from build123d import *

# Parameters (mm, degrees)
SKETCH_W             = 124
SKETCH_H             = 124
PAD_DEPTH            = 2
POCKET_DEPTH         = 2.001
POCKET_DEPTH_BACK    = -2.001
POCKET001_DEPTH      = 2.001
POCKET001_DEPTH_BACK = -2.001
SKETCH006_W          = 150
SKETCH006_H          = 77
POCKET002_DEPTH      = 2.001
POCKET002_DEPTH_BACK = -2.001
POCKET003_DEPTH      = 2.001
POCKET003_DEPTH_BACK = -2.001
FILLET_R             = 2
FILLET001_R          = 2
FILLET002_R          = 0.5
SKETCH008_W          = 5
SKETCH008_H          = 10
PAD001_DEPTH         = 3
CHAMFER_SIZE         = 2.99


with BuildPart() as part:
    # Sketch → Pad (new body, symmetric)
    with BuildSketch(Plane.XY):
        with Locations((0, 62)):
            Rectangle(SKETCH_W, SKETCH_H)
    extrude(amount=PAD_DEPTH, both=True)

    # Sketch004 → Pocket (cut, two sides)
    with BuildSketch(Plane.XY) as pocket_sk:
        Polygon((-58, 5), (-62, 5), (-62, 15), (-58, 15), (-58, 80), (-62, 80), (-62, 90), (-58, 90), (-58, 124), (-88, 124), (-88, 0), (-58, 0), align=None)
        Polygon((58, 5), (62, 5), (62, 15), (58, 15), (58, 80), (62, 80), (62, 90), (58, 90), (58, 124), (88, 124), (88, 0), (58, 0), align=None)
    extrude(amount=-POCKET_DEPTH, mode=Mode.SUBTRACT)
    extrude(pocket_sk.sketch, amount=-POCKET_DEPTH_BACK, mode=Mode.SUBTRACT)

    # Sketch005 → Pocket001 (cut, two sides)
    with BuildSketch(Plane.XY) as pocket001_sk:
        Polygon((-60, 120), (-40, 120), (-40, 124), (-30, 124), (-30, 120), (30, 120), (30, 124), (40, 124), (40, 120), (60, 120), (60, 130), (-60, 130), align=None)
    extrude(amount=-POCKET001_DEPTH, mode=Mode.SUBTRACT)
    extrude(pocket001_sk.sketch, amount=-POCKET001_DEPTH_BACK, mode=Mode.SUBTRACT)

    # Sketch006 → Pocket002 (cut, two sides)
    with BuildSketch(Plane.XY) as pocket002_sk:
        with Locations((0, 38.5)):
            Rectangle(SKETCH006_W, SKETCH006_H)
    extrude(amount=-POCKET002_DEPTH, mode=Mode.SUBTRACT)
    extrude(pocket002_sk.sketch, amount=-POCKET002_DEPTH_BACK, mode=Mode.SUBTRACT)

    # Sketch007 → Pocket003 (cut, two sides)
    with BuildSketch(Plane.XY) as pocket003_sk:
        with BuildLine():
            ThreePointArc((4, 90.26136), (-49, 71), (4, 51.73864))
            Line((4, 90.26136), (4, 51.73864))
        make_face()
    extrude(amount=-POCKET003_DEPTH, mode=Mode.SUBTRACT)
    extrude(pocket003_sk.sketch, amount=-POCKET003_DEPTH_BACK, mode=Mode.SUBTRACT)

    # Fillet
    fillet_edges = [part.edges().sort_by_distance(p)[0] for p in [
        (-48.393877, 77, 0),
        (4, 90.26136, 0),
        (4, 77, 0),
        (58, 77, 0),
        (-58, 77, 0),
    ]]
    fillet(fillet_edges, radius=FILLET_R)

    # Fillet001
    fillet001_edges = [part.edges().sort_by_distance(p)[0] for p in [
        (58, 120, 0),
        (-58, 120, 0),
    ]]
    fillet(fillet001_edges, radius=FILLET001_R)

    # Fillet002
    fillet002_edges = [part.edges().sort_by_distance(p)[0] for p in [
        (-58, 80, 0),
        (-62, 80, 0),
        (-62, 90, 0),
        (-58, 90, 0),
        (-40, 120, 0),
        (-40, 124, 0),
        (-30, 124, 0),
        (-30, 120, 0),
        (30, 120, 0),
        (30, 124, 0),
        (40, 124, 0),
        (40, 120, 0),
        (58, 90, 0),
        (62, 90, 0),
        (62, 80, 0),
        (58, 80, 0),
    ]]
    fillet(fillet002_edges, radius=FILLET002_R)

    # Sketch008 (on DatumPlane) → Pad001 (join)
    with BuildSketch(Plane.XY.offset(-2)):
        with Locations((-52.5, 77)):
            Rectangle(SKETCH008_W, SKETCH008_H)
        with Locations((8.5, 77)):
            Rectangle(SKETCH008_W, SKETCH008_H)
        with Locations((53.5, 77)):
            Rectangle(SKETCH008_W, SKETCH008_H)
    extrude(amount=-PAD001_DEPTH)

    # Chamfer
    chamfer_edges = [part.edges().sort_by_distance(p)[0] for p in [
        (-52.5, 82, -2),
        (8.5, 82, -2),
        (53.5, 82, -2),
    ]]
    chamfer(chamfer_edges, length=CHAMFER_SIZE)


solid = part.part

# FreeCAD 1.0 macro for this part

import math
import FreeCAD as App
import Part
import Sketcher

V = App.Vector


def edges_at(feature, points):
    """Names of the edges that pass closest to the given points."""
    edges = feature.Shape.Edges
    near = lambda p: min(range(len(edges)), key=lambda i: edges[i].distToShape(Part.Vertex(*p))[0])
    return sorted({f"Edge{near(p) + 1}" for p in points})

doc = App.newDocument("Part")
body = doc.addObject("PartDesign::Body", "Body")

sketch1 = doc.addObject("Sketcher::SketchObject", "Sketch")
body.addObject(sketch1)
sketch1.AttachmentSupport = (doc.XY_Plane, [""])
sketch1.MapMode = "FlatFace"
sketch1.addGeometry(Part.LineSegment(V(-62, 124, 0), V(-62, 0, 0)), False)
sketch1.addGeometry(Part.LineSegment(V(-62, 0, 0), V(62, 0, 0)), False)
sketch1.addGeometry(Part.LineSegment(V(62, 0, 0), V(62, 124, 0)), False)
sketch1.addGeometry(Part.LineSegment(V(62, 124, 0), V(-62, 124, 0)), False)
sketch1.addConstraint(Sketcher.Constraint("Coincident", 0, 2, 1, 1))
sketch1.addConstraint(Sketcher.Constraint("Coincident", 1, 2, 2, 1))
sketch1.addConstraint(Sketcher.Constraint("Coincident", 2, 2, 3, 1))
sketch1.addConstraint(Sketcher.Constraint("Coincident", 3, 2, 0, 1))
sketch1.addConstraint(Sketcher.Constraint("Vertical", 0))
sketch1.addConstraint(Sketcher.Constraint("Horizontal", 1))
sketch1.addConstraint(Sketcher.Constraint("Vertical", 2))
sketch1.addConstraint(Sketcher.Constraint("Horizontal", 3))
sketch1.addConstraint(Sketcher.Constraint("Symmetric", 0, 2, 1, 2, -1, 1))
sketch1.addConstraint(Sketcher.Constraint("Equal", 3, 0))
sketch1.addConstraint(Sketcher.Constraint("DistanceX", 1, 1, 1, 2, 124.0))
pad1 = doc.addObject("PartDesign::Pad", "Pad")
body.addObject(pad1)
pad1.Profile = sketch1
pad1.Length = 4
pad1.Midplane = True

sketch2 = doc.addObject("Sketcher::SketchObject", "Sketch001")
body.addObject(sketch2)
sketch2.AttachmentSupport = (doc.XY_Plane, [""])
sketch2.MapMode = "FlatFace"
sketch2.addGeometry(Part.LineSegment(V(-58, 5, 0), V(-62, 5, 0)), False)
sketch2.addGeometry(Part.LineSegment(V(-62, 5, 0), V(-62, 15, 0)), False)
sketch2.addGeometry(Part.LineSegment(V(-62, 15, 0), V(-58, 15, 0)), False)
sketch2.addGeometry(Part.LineSegment(V(-58, 15, 0), V(-58, 80, 0)), False)
sketch2.addGeometry(Part.LineSegment(V(-58, 80, 0), V(-62, 80, 0)), False)
sketch2.addGeometry(Part.LineSegment(V(-62, 80, 0), V(-62, 90, 0)), False)
sketch2.addGeometry(Part.LineSegment(V(-62, 90, 0), V(-58, 90, 0)), False)
sketch2.addGeometry(Part.LineSegment(V(-58, 90, 0), V(-58, 124, 0)), False)
sketch2.addGeometry(Part.LineSegment(V(-58, 124, 0), V(-88, 124, 0)), False)
sketch2.addGeometry(Part.LineSegment(V(-88, 124, 0), V(-88, 0, 0)), False)
sketch2.addGeometry(Part.LineSegment(V(-88, 0, 0), V(-58, 0, 0)), False)
sketch2.addGeometry(Part.LineSegment(V(-58, 0, 0), V(-58, 5, 0)), False)
sketch2.addGeometry(Part.LineSegment(V(62, 5, 0), V(58, 5, 0)), False)
sketch2.addGeometry(Part.LineSegment(V(58, 5, 0), V(58, 0, 0)), False)
sketch2.addGeometry(Part.LineSegment(V(58, 0, 0), V(88, 0, 0)), False)
sketch2.addGeometry(Part.LineSegment(V(88, 0, 0), V(88, 124, 0)), False)
sketch2.addGeometry(Part.LineSegment(V(88, 124, 0), V(58, 124, 0)), False)
sketch2.addGeometry(Part.LineSegment(V(58, 124, 0), V(58, 90, 0)), False)
sketch2.addGeometry(Part.LineSegment(V(58, 90, 0), V(62, 90, 0)), False)
sketch2.addGeometry(Part.LineSegment(V(62, 90, 0), V(62, 80, 0)), False)
sketch2.addGeometry(Part.LineSegment(V(62, 80, 0), V(58, 80, 0)), False)
sketch2.addGeometry(Part.LineSegment(V(58, 80, 0), V(58, 15, 0)), False)
sketch2.addGeometry(Part.LineSegment(V(58, 15, 0), V(62, 15, 0)), False)
sketch2.addGeometry(Part.LineSegment(V(62, 15, 0), V(62, 5, 0)), False)
sketch2.addConstraint(Sketcher.Constraint("Coincident", 0, 2, 1, 1))
sketch2.addConstraint(Sketcher.Constraint("Coincident", 1, 2, 2, 1))
sketch2.addConstraint(Sketcher.Constraint("Coincident", 2, 2, 3, 1))
sketch2.addConstraint(Sketcher.Constraint("Coincident", 3, 2, 4, 1))
sketch2.addConstraint(Sketcher.Constraint("Coincident", 4, 2, 5, 1))
sketch2.addConstraint(Sketcher.Constraint("Coincident", 5, 2, 6, 1))
sketch2.addConstraint(Sketcher.Constraint("Coincident", 6, 2, 7, 1))
sketch2.addConstraint(Sketcher.Constraint("Coincident", 7, 2, 8, 1))
sketch2.addConstraint(Sketcher.Constraint("Coincident", 8, 2, 9, 1))
sketch2.addConstraint(Sketcher.Constraint("Coincident", 9, 2, 10, 1))
sketch2.addConstraint(Sketcher.Constraint("Coincident", 10, 2, 11, 1))
sketch2.addConstraint(Sketcher.Constraint("Coincident", 11, 2, 0, 1))
sketch2.addConstraint(Sketcher.Constraint("Coincident", 12, 2, 13, 1))
sketch2.addConstraint(Sketcher.Constraint("Coincident", 13, 2, 14, 1))
sketch2.addConstraint(Sketcher.Constraint("Coincident", 14, 2, 15, 1))
sketch2.addConstraint(Sketcher.Constraint("Coincident", 15, 2, 16, 1))
sketch2.addConstraint(Sketcher.Constraint("Coincident", 16, 2, 17, 1))
sketch2.addConstraint(Sketcher.Constraint("Coincident", 17, 2, 18, 1))
sketch2.addConstraint(Sketcher.Constraint("Coincident", 18, 2, 19, 1))
sketch2.addConstraint(Sketcher.Constraint("Coincident", 19, 2, 20, 1))
sketch2.addConstraint(Sketcher.Constraint("Coincident", 20, 2, 21, 1))
sketch2.addConstraint(Sketcher.Constraint("Coincident", 21, 2, 22, 1))
sketch2.addConstraint(Sketcher.Constraint("Coincident", 22, 2, 23, 1))
sketch2.addConstraint(Sketcher.Constraint("Coincident", 23, 2, 12, 1))
sketch2.addConstraint(Sketcher.Constraint("Horizontal", 0))
sketch2.addConstraint(Sketcher.Constraint("Vertical", 1))
sketch2.addConstraint(Sketcher.Constraint("Horizontal", 2))
sketch2.addConstraint(Sketcher.Constraint("Vertical", 3))
sketch2.addConstraint(Sketcher.Constraint("Horizontal", 4))
sketch2.addConstraint(Sketcher.Constraint("Vertical", 5))
sketch2.addConstraint(Sketcher.Constraint("Horizontal", 6))
sketch2.addConstraint(Sketcher.Constraint("Vertical", 7))
sketch2.addConstraint(Sketcher.Constraint("Horizontal", 8))
sketch2.addConstraint(Sketcher.Constraint("Vertical", 9))
sketch2.addConstraint(Sketcher.Constraint("Horizontal", 10))
sketch2.addConstraint(Sketcher.Constraint("Vertical", 11))
sketch2.addConstraint(Sketcher.Constraint("Horizontal", 12))
sketch2.addConstraint(Sketcher.Constraint("Vertical", 13))
sketch2.addConstraint(Sketcher.Constraint("Horizontal", 14))
sketch2.addConstraint(Sketcher.Constraint("Vertical", 15))
sketch2.addConstraint(Sketcher.Constraint("Horizontal", 16))
sketch2.addConstraint(Sketcher.Constraint("Vertical", 17))
sketch2.addConstraint(Sketcher.Constraint("Horizontal", 18))
sketch2.addConstraint(Sketcher.Constraint("Vertical", 19))
sketch2.addConstraint(Sketcher.Constraint("Horizontal", 20))
sketch2.addConstraint(Sketcher.Constraint("Vertical", 21))
sketch2.addConstraint(Sketcher.Constraint("Horizontal", 22))
sketch2.addConstraint(Sketcher.Constraint("Vertical", 23))
sketch2.addConstraint(Sketcher.Constraint("Symmetric", 10, 2, 13, 2, -1, 1))
sketch2.addConstraint(Sketcher.Constraint("Symmetric", 9, 2, 14, 2, -2))
sketch2.addConstraint(Sketcher.Constraint("Symmetric", 7, 2, 16, 2, -2))
sketch2.addConstraint(Sketcher.Constraint("Symmetric", 5, 2, 18, 2, -2))
sketch2.addConstraint(Sketcher.Constraint("Symmetric", 3, 2, 20, 2, -2))
sketch2.addConstraint(Sketcher.Constraint("Symmetric", 1, 2, 22, 2, -2))
sketch2.addConstraint(Sketcher.Constraint("Horizontal", 11, 2, 12, 2))
sketch2.addConstraint(Sketcher.Constraint("Vertical", 1, 2, 4, 2))
sketch2.addConstraint(Sketcher.Constraint("Vertical", 3, 2, 6, 2))
sketch2.addConstraint(Sketcher.Constraint("Vertical", 7, 2, 10, 2))
sketch2.addConstraint(Sketcher.Constraint("Equal", 1, 5))
sketch2.addConstraint(Sketcher.Constraint("DistanceX", 0, 2, 0, 1, 4.0))
sketch2.addConstraint(Sketcher.Constraint("DistanceX", 8, 2, 8, 1, 30.0))
sketch2.addConstraint(Sketcher.Constraint("DistanceY", 1, 1, 1, 2, 10.0))
sketch2.addConstraint(Sketcher.Constraint("DistanceY", 3, 1, 3, 2, 65.0))
sketch2.addConstraint(Sketcher.Constraint("DistanceY", 7, 1, 7, 2, 34.0))
sketch2.addConstraint(Sketcher.Constraint("DistanceY", 9, 2, 9, 1, 124.0))
sketch2.addConstraint(Sketcher.Constraint("DistanceX", 0, 2, -1, 1, 62.0))
pocket1 = doc.addObject("PartDesign::Pocket", "Pocket")
body.addObject(pocket1)
pocket1.Profile = sketch2
pocket1.Type = "ThroughAll"
pocket1.Midplane = True

sketch3 = doc.addObject("Sketcher::SketchObject", "Sketch002")
body.addObject(sketch3)
sketch3.AttachmentSupport = (doc.XY_Plane, [""])
sketch3.MapMode = "FlatFace"
sketch3.addGeometry(Part.LineSegment(V(-60, 120, 0), V(-40, 120, 0)), False)
sketch3.addGeometry(Part.LineSegment(V(-40, 120, 0), V(-40, 124, 0)), False)
sketch3.addGeometry(Part.LineSegment(V(-40, 124, 0), V(-30, 124, 0)), False)
sketch3.addGeometry(Part.LineSegment(V(-30, 124, 0), V(-30, 120, 0)), False)
sketch3.addGeometry(Part.LineSegment(V(-30, 120, 0), V(30, 120, 0)), False)
sketch3.addGeometry(Part.LineSegment(V(30, 120, 0), V(30, 124, 0)), False)
sketch3.addGeometry(Part.LineSegment(V(30, 124, 0), V(40, 124, 0)), False)
sketch3.addGeometry(Part.LineSegment(V(40, 124, 0), V(40, 120, 0)), False)
sketch3.addGeometry(Part.LineSegment(V(40, 120, 0), V(60, 120, 0)), False)
sketch3.addGeometry(Part.LineSegment(V(60, 120, 0), V(60, 130, 0)), False)
sketch3.addGeometry(Part.LineSegment(V(60, 130, 0), V(-60, 130, 0)), False)
sketch3.addGeometry(Part.LineSegment(V(-60, 130, 0), V(-60, 120, 0)), False)
sketch3.addConstraint(Sketcher.Constraint("Coincident", 0, 2, 1, 1))
sketch3.addConstraint(Sketcher.Constraint("Coincident", 1, 2, 2, 1))
sketch3.addConstraint(Sketcher.Constraint("Coincident", 2, 2, 3, 1))
sketch3.addConstraint(Sketcher.Constraint("Coincident", 3, 2, 4, 1))
sketch3.addConstraint(Sketcher.Constraint("Coincident", 4, 2, 5, 1))
sketch3.addConstraint(Sketcher.Constraint("Coincident", 5, 2, 6, 1))
sketch3.addConstraint(Sketcher.Constraint("Coincident", 6, 2, 7, 1))
sketch3.addConstraint(Sketcher.Constraint("Coincident", 7, 2, 8, 1))
sketch3.addConstraint(Sketcher.Constraint("Coincident", 8, 2, 9, 1))
sketch3.addConstraint(Sketcher.Constraint("Coincident", 9, 2, 10, 1))
sketch3.addConstraint(Sketcher.Constraint("Coincident", 10, 2, 11, 1))
sketch3.addConstraint(Sketcher.Constraint("Coincident", 11, 2, 0, 1))
sketch3.addConstraint(Sketcher.Constraint("Horizontal", 0))
sketch3.addConstraint(Sketcher.Constraint("Vertical", 1))
sketch3.addConstraint(Sketcher.Constraint("Horizontal", 2))
sketch3.addConstraint(Sketcher.Constraint("Vertical", 3))
sketch3.addConstraint(Sketcher.Constraint("Horizontal", 4))
sketch3.addConstraint(Sketcher.Constraint("Vertical", 5))
sketch3.addConstraint(Sketcher.Constraint("Horizontal", 6))
sketch3.addConstraint(Sketcher.Constraint("Vertical", 7))
sketch3.addConstraint(Sketcher.Constraint("Horizontal", 8))
sketch3.addConstraint(Sketcher.Constraint("Vertical", 9))
sketch3.addConstraint(Sketcher.Constraint("Horizontal", 10))
sketch3.addConstraint(Sketcher.Constraint("Vertical", 11))
sketch3.addConstraint(Sketcher.Constraint("Symmetric", 2, 2, 5, 2, -2))
sketch3.addConstraint(Sketcher.Constraint("Symmetric", 0, 2, 7, 2, -2))
sketch3.addConstraint(Sketcher.Constraint("Horizontal", 0, 2, 3, 2))
sketch3.addConstraint(Sketcher.Constraint("Equal", 0, 8))
sketch3.addConstraint(Sketcher.Constraint("Equal", 6, 9))
sketch3.addConstraint(Sketcher.Constraint("DistanceX", 0, 1, 0, 2, 20.0))
sketch3.addConstraint(Sketcher.Constraint("DistanceX", 2, 1, 2, 2, 10.0))
sketch3.addConstraint(Sketcher.Constraint("DistanceX", 4, 1, 4, 2, 60.0))
sketch3.addConstraint(Sketcher.Constraint("DistanceY", 1, 1, 1, 2, 4.0))
sketch3.addConstraint(Sketcher.Constraint("DistanceY", -1, 1, 0, 2, 120.0))
pocket2 = doc.addObject("PartDesign::Pocket", "Pocket001")
body.addObject(pocket2)
pocket2.Profile = sketch3
pocket2.Type = "ThroughAll"
pocket2.Midplane = True

sketch4 = doc.addObject("Sketcher::SketchObject", "Sketch003")
body.addObject(sketch4)
sketch4.AttachmentSupport = (doc.XY_Plane, [""])
sketch4.MapMode = "FlatFace"
sketch4.addGeometry(Part.LineSegment(V(-75, 77, 0), V(-75, 0, 0)), False)
sketch4.addGeometry(Part.LineSegment(V(-75, 0, 0), V(75, 0, 0)), False)
sketch4.addGeometry(Part.LineSegment(V(75, 0, 0), V(75, 77, 0)), False)
sketch4.addGeometry(Part.LineSegment(V(75, 77, 0), V(-75, 77, 0)), False)
sketch4.addConstraint(Sketcher.Constraint("Coincident", 0, 2, 1, 1))
sketch4.addConstraint(Sketcher.Constraint("Coincident", 1, 2, 2, 1))
sketch4.addConstraint(Sketcher.Constraint("Coincident", 2, 2, 3, 1))
sketch4.addConstraint(Sketcher.Constraint("Coincident", 3, 2, 0, 1))
sketch4.addConstraint(Sketcher.Constraint("Vertical", 0))
sketch4.addConstraint(Sketcher.Constraint("Horizontal", 1))
sketch4.addConstraint(Sketcher.Constraint("Vertical", 2))
sketch4.addConstraint(Sketcher.Constraint("Horizontal", 3))
sketch4.addConstraint(Sketcher.Constraint("Symmetric", 0, 2, 1, 2, -1, 1))
sketch4.addConstraint(Sketcher.Constraint("DistanceX", 1, 1, 1, 2, 150.0))
sketch4.addConstraint(Sketcher.Constraint("DistanceY", 0, 2, 0, 1, 77.0))
pocket3 = doc.addObject("PartDesign::Pocket", "Pocket002")
body.addObject(pocket3)
pocket3.Profile = sketch4
pocket3.Type = "ThroughAll"
pocket3.Midplane = True

sketch5 = doc.addObject("Sketcher::SketchObject", "Sketch004")
body.addObject(sketch5)
sketch5.AttachmentSupport = (doc.XY_Plane, [""])
sketch5.MapMode = "FlatFace"
sketch5.addGeometry(Part.ArcOfCircle(Part.Circle(V(-19, 71, 0), V(0, 0, 1), 30), math.radians(40), math.radians(320)), False)
sketch5.addGeometry(Part.LineSegment(V(4, 52, 0), V(4, 90, 0)), False)
sketch5.addConstraint(Sketcher.Constraint("Coincident", 0, 1, 1, 2))
sketch5.addConstraint(Sketcher.Constraint("Coincident", 1, 1, 0, 2))
sketch5.addConstraint(Sketcher.Constraint("Vertical", 1))
sketch5.addConstraint(Sketcher.Constraint("Radius", 0, 30.0))
sketch5.addConstraint(Sketcher.Constraint("DistanceX", 0, 3, -1, 1, 19.0))
sketch5.addConstraint(Sketcher.Constraint("DistanceY", -1, 1, 0, 3, 71.0))
sketch5.addConstraint(Sketcher.Constraint("DistanceX", -1, 1, 0, 1, 4.0))
pocket4 = doc.addObject("PartDesign::Pocket", "Pocket003")
body.addObject(pocket4)
pocket4.Profile = sketch5
pocket4.Type = "ThroughAll"
pocket4.Midplane = True
doc.recompute()

fillet = doc.addObject("PartDesign::Fillet", "Fillet")
body.addObject(fillet)
fillet.Base = (pocket4, edges_at(pocket4, [
    (-48.394, 77, 0),
    (4, 90.261, 0),
    (4, 77, 0),
    (58, 77, 0),
    (-58, 77, 0),
]))
fillet.Radius = 2
doc.recompute()

fillet2 = doc.addObject("PartDesign::Fillet", "Fillet001")
body.addObject(fillet2)
fillet2.Base = (fillet, edges_at(fillet, [(58, 120, 0), (-58, 120, 0)]))
fillet2.Radius = 2
doc.recompute()

fillet3 = doc.addObject("PartDesign::Fillet", "Fillet002")
body.addObject(fillet3)
fillet3.Base = (fillet2, edges_at(fillet2, [
    (-58, 80, 0),
    (-62, 80, 0),
    (-62, 90, 0),
    (-58, 90, 0),
    (-40, 120, 0),
    (-40, 124, 0),
    (-30, 124, 0),
    (-30, 120, 0),
    (30, 120, 0),
    (30, 124, 0),
    (40, 124, 0),
    (40, 120, 0),
    (58, 90, 0),
    (62, 90, 0),
    (62, 80, 0),
    (58, 80, 0),
]))
fillet3.Radius = 0.5

sketch6 = doc.addObject("Sketcher::SketchObject", "Sketch005")
body.addObject(sketch6)
sketch6.AttachmentSupport = (doc.XY_Plane, [""])
sketch6.MapMode = "FlatFace"
sketch6.AttachmentOffset = App.Placement(V(0, 0, -2), App.Rotation())
sketch6.addGeometry(Part.LineSegment(V(-55, 82, 0), V(-55, 72, 0)), False)
sketch6.addGeometry(Part.LineSegment(V(-55, 72, 0), V(-50, 72, 0)), False)
sketch6.addGeometry(Part.LineSegment(V(-50, 72, 0), V(-50, 82, 0)), False)
sketch6.addGeometry(Part.LineSegment(V(-50, 82, 0), V(-55, 82, 0)), False)
sketch6.addGeometry(Part.LineSegment(V(6, 82, 0), V(6, 72, 0)), False)
sketch6.addGeometry(Part.LineSegment(V(6, 72, 0), V(11, 72, 0)), False)
sketch6.addGeometry(Part.LineSegment(V(11, 72, 0), V(11, 82, 0)), False)
sketch6.addGeometry(Part.LineSegment(V(11, 82, 0), V(6, 82, 0)), False)
sketch6.addGeometry(Part.LineSegment(V(51, 82, 0), V(51, 72, 0)), False)
sketch6.addGeometry(Part.LineSegment(V(51, 72, 0), V(56, 72, 0)), False)
sketch6.addGeometry(Part.LineSegment(V(56, 72, 0), V(56, 82, 0)), False)
sketch6.addGeometry(Part.LineSegment(V(56, 82, 0), V(51, 82, 0)), False)
sketch6.addConstraint(Sketcher.Constraint("Coincident", 0, 2, 1, 1))
sketch6.addConstraint(Sketcher.Constraint("Coincident", 1, 2, 2, 1))
sketch6.addConstraint(Sketcher.Constraint("Coincident", 2, 2, 3, 1))
sketch6.addConstraint(Sketcher.Constraint("Coincident", 3, 2, 0, 1))
sketch6.addConstraint(Sketcher.Constraint("Coincident", 4, 2, 5, 1))
sketch6.addConstraint(Sketcher.Constraint("Coincident", 5, 2, 6, 1))
sketch6.addConstraint(Sketcher.Constraint("Coincident", 6, 2, 7, 1))
sketch6.addConstraint(Sketcher.Constraint("Coincident", 7, 2, 4, 1))
sketch6.addConstraint(Sketcher.Constraint("Coincident", 8, 2, 9, 1))
sketch6.addConstraint(Sketcher.Constraint("Coincident", 9, 2, 10, 1))
sketch6.addConstraint(Sketcher.Constraint("Coincident", 10, 2, 11, 1))
sketch6.addConstraint(Sketcher.Constraint("Coincident", 11, 2, 8, 1))
sketch6.addConstraint(Sketcher.Constraint("Vertical", 0))
sketch6.addConstraint(Sketcher.Constraint("Horizontal", 1))
sketch6.addConstraint(Sketcher.Constraint("Vertical", 2))
sketch6.addConstraint(Sketcher.Constraint("Horizontal", 3))
sketch6.addConstraint(Sketcher.Constraint("Vertical", 4))
sketch6.addConstraint(Sketcher.Constraint("Horizontal", 5))
sketch6.addConstraint(Sketcher.Constraint("Vertical", 6))
sketch6.addConstraint(Sketcher.Constraint("Horizontal", 7))
sketch6.addConstraint(Sketcher.Constraint("Vertical", 8))
sketch6.addConstraint(Sketcher.Constraint("Horizontal", 9))
sketch6.addConstraint(Sketcher.Constraint("Vertical", 10))
sketch6.addConstraint(Sketcher.Constraint("Horizontal", 11))
sketch6.addConstraint(Sketcher.Constraint("Horizontal", 1, 2, 4, 2))
sketch6.addConstraint(Sketcher.Constraint("Horizontal", 3, 2, 6, 2))
sketch6.addConstraint(Sketcher.Constraint("Horizontal", 5, 2, 8, 2))
sketch6.addConstraint(Sketcher.Constraint("Horizontal", 7, 2, 10, 2))
sketch6.addConstraint(Sketcher.Constraint("Equal", 3, 5))
sketch6.addConstraint(Sketcher.Constraint("Equal", 7, 9))
sketch6.addConstraint(Sketcher.Constraint("DistanceX", 1, 1, 1, 2, 5.0))
sketch6.addConstraint(Sketcher.Constraint("DistanceY", 0, 2, 0, 1, 10.0))
sketch6.addConstraint(Sketcher.Constraint("DistanceX", 0, 2, -1, 1, 55.0))
sketch6.addConstraint(Sketcher.Constraint("DistanceY", -1, 1, 0, 2, 72.0))
sketch6.addConstraint(Sketcher.Constraint("DistanceX", -1, 1, 4, 2, 6.0))
sketch6.addConstraint(Sketcher.Constraint("DistanceX", -1, 1, 8, 2, 51.0))
pad2 = doc.addObject("PartDesign::Pad", "Pad001")
body.addObject(pad2)
pad2.Profile = sketch6
pad2.Length = 3
pad2.Reversed = True
doc.recompute()

chamfer = doc.addObject("PartDesign::Chamfer", "Chamfer")
body.addObject(chamfer)
chamfer.Base = (pad2, edges_at(pad2, [(-52.5, 82, -2), (8.5, 82, -2), (53.5, 82, -2)]))
chamfer.Size = 2.99

doc.recompute()
